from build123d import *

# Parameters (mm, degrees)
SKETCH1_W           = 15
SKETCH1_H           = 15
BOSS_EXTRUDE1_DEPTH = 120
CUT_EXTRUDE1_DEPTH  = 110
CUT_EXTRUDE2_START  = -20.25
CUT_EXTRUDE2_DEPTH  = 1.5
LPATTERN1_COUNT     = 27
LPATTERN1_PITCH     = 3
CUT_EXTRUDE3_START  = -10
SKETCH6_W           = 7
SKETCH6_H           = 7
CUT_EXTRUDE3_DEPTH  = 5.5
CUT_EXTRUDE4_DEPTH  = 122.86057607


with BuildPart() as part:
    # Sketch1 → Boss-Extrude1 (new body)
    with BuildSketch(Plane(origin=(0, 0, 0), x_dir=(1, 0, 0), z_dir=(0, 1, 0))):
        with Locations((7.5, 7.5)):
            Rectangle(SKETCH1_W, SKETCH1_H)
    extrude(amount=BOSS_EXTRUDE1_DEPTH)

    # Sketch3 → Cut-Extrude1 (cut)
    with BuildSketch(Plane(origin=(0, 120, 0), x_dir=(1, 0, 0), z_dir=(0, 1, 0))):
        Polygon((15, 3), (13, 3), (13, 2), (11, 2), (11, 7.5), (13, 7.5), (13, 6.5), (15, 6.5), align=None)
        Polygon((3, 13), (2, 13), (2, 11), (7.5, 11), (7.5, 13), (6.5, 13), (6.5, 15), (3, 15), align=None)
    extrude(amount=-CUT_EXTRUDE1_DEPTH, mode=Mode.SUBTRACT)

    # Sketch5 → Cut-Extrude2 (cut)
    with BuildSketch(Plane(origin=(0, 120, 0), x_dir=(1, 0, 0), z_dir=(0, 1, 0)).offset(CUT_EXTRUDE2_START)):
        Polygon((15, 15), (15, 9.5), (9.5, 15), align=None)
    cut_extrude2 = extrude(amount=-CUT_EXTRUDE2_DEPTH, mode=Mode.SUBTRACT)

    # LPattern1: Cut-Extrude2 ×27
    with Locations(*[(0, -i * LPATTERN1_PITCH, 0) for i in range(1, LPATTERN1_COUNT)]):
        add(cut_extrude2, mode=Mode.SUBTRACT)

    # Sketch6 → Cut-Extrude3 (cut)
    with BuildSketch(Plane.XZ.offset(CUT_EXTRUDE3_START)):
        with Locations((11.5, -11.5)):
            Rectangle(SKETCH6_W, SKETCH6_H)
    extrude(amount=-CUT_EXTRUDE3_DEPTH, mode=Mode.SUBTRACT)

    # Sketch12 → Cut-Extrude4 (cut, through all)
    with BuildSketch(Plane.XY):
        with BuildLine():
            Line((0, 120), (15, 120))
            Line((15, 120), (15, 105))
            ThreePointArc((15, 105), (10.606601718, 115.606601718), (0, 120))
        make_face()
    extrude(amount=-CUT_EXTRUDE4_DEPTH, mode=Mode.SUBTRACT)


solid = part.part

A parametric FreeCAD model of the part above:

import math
import FreeCAD as App
import Part
import Sketcher
from FreeCAD import Vector
Q = App.Units.Quantity


def add_polygon(sketch, points):
    """Adds a closed chain of lines whose ends are joined by coincident constraints."""
    first, n = sketch.GeometryCount, len(points)
    for a, b in zip(points, points[1:] + points[:1]):
        sketch.addGeometry(Part.LineSegment(App.Vector(*a, 0), App.Vector(*b, 0)), False)
    for i in range(n):
        sketch.addConstraint(Sketcher.Constraint("Coincident", first + i, 2, first + (i + 1) % n, 1))

doc = App.newDocument("Part")
body = doc.addObject("PartDesign::Body", "Body")

sketch1 = body.newObject("Sketcher::SketchObject", "Sketch")
sketch1.AttachmentSupport = (doc.getObject("XZ_Plane"), [""])
sketch1.MapMode = "FlatFace"
add_polygon(sketch1, [(0, -15), (0, 0), (15, 0), (15, -15)])
sketch1.addConstraint([
    Sketcher.Constraint("Vertical", 0),
    Sketcher.Constraint("Horizontal", 1),
    Sketcher.Constraint("Vertical", 2),
    Sketcher.Constraint("Horizontal", 3),
    Sketcher.Constraint("Coincident", 0, 2, -1, 1),
    Sketcher.Constraint("Equal", 3, 0),
    Sketcher.Constraint("DistanceX", 1, 1, 1, 2, Q("15 mm")),
])
pad1 = body.newObject("PartDesign::Pad", "Pad")
pad1.Profile = sketch1
pad1.Length = 120
pad1.Reversed = True

sketch2 = body.newObject("Sketcher::SketchObject", "Sketch001")
sketch2.AttachmentSupport = (doc.getObject("XZ_Plane"), [""])
sketch2.MapMode = "FlatFace"
sketch2.AttachmentOffset = App.Placement(Vector(0, 0, -120), App.Rotation())
add_polygon(sketch2, [(13, -3), (15, -3), (15, -6.5), (13, -6.5), (13, -7.5), (11, -7.5), (11, -2), (13, -2)])
add_polygon(sketch2, [(3, -13), (2, -13), (2, -11), (7.5, -11), (7.5, -13), (6.5, -13), (6.5, -15), (3, -15)])
sketch2.addConstraint([
    Sketcher.Constraint("Horizontal", 0),
    Sketcher.Constraint("Vertical", 1),
    Sketcher.Constraint("Horizontal", 2),
    Sketcher.Constraint("Vertical", 3),
    Sketcher.Constraint("Horizontal", 4),
    Sketcher.Constraint("Vertical", 5),
    Sketcher.Constraint("Horizontal", 6),
    Sketcher.Constraint("Vertical", 7),
    Sketcher.Constraint("Horizontal", 8),
    Sketcher.Constraint("Vertical", 9),
    Sketcher.Constraint("Horizontal", 10),
    Sketcher.Constraint("Vertical", 11),
    Sketcher.Constraint("Horizontal", 12),
    Sketcher.Constraint("Vertical", 13),
    Sketcher.Constraint("Horizontal", 14),
    Sketcher.Constraint("Vertical", 15),
    Sketcher.Constraint("Horizontal", 8, 2, 11, 2),
    Sketcher.Constraint("Vertical", 3, 2, 6, 2),
    Sketcher.Constraint("Equal", 2, 4),
    Sketcher.Constraint("Equal", 8, 12),
    Sketcher.Constraint("Equal", 14, 1),
    Sketcher.Constraint("Equal", 12, 3),
    Sketcher.Constraint("Equal", 10, 5),
    Sketcher.Constraint("Equal", 6, 9),
    Sketcher.Constraint("Equal", 11, 13),
    Sketcher.Constraint("DistanceX", 0, 1, 0, 2, Q("2 mm")),
    Sketcher.Constraint("DistanceX", 8, 2, 8, 1, Q("1 mm")),
    Sketcher.Constraint("DistanceX", 10, 1, 10, 2, Q("5.5 mm")),
    Sketcher.Constraint("DistanceX", -1, 1, 0, 2, Q("15 mm")),
    Sketcher.Constraint("DistanceY", 0, 2, -1, 1, Q("3 mm")),
    Sketcher.Constraint("DistanceX", -1, 1, 8, 2, Q("2 mm")),
    Sketcher.Constraint("DistanceY", 8, 2, -1, 1, Q("13 mm")),
])
pocket1 = body.newObject("PartDesign::Pocket", "Pocket")
pocket1.Profile = sketch2
pocket1.Length = 110
pocket1.Reversed = True

sketch3 = body.newObject("Sketcher::SketchObject", "Sketch002")
sketch3.AttachmentSupport = (doc.getObject("XZ_Plane"), [""])
sketch3.MapMode = "FlatFace"
sketch3.AttachmentOffset = App.Placement(Vector(0, 0, -99.75), App.Rotation())
add_polygon(sketch3, [(15, -10), (15, -15), (10, -15)])
sketch3.addConstraint([
    Sketcher.Constraint("Vertical", 0),
    Sketcher.Constraint("Horizontal", 1),
    Sketcher.Constraint("Equal", 1, 0),
    Sketcher.Constraint("DistanceX", 1, 2, 1, 1, Q("5.5 mm")),
    Sketcher.Constraint("DistanceX", -1, 1, 0, 2, Q("15 mm")),
    Sketcher.Constraint("DistanceY", 0, 2, -1, 1, Q("15 mm")),
])
pocket2 = body.newObject("PartDesign::Pocket", "Pocket001")
pocket2.Profile = sketch3
pocket2.Length = 1.5
pocket2.Reversed = True
doc.recompute()

linearpattern = body.newObject("PartDesign::LinearPattern", "LinearPattern")
linearpattern.Originals = [pocket2]
linearpattern.Direction = (doc.getObject("Y_Axis"), [""])
linearpattern.Mode = "offset"
linearpattern.Offset = 3
linearpattern.Occurrences = 27
linearpattern.Reversed = True
body.Tip = linearpattern

sketch4 = body.newObject("Sketcher::SketchObject", "Sketch003")
sketch4.AttachmentSupport = (doc.getObject("XZ_Plane"), [""])
sketch4.MapMode = "FlatFace"
sketch4.AttachmentOffset = App.Placement(Vector(0, 0, -10), App.Rotation())
add_polygon(sketch4, [(8, -8), (8, -15), (15, -15), (15, -8)])
sketch4.addConstraint([
    Sketcher.Constraint("Vertical", 0),
    Sketcher.Constraint("Horizontal", 1),
    Sketcher.Constraint("Vertical", 2),
    Sketcher.Constraint("Horizontal", 3),
    Sketcher.Constraint("Equal", 3, 0),
    Sketcher.Constraint("DistanceX", 1, 1, 1, 2, Q("7 mm")),
    Sketcher.Constraint("DistanceX", -1, 1, 0, 2, Q("8 mm")),
    Sketcher.Constraint("DistanceY", 0, 2, -1, 1, Q("15 mm")),
])
pocket3 = body.newObject("PartDesign::Pocket", "Pocket002")
pocket3.Profile = sketch4
pocket3.Length = 5.5

sketch5 = body.newObject("Sketcher::SketchObject", "Sketch004")
sketch5.AttachmentSupport = (doc.getObject("XY_Plane"), [""])
sketch5.MapMode = "FlatFace"
sketch5.addGeometry([
    Part.LineSegment(Vector(15, 120, 0), Vector(0, 120, 0)),
    Part.ArcOfCircle(Part.Circle(Vector(0, 105, 0), Vector(0, 0, 1), 15), math.radians(0), math.radians(90)),
    Part.LineSegment(Vector(15, 105, 0), Vector(15, 120, 0)),
], False)
sketch5.addConstraint([
    Sketcher.Constraint("Tangent", 0, 2, 1, 2),
    Sketcher.Constraint("Tangent", 1, 1, 2, 1),
    Sketcher.Constraint("Coincident", 2, 2, 0, 1),
    Sketcher.Constraint("Horizontal", 0),
    Sketcher.Constraint("Vertical", 2),
    Sketcher.Constraint("PointOnObject", 1, 3, -2),
    Sketcher.Constraint("Radius", 1, Q("15 mm")),
    Sketcher.Constraint("DistanceY", -1, 1, 1, 3, Q("105 mm")),
])
pocket4 = body.newObject("PartDesign::Pocket", "Pocket003")
pocket4.Profile = sketch5
pocket4.Type = "ThroughAll"

doc.recompute()
